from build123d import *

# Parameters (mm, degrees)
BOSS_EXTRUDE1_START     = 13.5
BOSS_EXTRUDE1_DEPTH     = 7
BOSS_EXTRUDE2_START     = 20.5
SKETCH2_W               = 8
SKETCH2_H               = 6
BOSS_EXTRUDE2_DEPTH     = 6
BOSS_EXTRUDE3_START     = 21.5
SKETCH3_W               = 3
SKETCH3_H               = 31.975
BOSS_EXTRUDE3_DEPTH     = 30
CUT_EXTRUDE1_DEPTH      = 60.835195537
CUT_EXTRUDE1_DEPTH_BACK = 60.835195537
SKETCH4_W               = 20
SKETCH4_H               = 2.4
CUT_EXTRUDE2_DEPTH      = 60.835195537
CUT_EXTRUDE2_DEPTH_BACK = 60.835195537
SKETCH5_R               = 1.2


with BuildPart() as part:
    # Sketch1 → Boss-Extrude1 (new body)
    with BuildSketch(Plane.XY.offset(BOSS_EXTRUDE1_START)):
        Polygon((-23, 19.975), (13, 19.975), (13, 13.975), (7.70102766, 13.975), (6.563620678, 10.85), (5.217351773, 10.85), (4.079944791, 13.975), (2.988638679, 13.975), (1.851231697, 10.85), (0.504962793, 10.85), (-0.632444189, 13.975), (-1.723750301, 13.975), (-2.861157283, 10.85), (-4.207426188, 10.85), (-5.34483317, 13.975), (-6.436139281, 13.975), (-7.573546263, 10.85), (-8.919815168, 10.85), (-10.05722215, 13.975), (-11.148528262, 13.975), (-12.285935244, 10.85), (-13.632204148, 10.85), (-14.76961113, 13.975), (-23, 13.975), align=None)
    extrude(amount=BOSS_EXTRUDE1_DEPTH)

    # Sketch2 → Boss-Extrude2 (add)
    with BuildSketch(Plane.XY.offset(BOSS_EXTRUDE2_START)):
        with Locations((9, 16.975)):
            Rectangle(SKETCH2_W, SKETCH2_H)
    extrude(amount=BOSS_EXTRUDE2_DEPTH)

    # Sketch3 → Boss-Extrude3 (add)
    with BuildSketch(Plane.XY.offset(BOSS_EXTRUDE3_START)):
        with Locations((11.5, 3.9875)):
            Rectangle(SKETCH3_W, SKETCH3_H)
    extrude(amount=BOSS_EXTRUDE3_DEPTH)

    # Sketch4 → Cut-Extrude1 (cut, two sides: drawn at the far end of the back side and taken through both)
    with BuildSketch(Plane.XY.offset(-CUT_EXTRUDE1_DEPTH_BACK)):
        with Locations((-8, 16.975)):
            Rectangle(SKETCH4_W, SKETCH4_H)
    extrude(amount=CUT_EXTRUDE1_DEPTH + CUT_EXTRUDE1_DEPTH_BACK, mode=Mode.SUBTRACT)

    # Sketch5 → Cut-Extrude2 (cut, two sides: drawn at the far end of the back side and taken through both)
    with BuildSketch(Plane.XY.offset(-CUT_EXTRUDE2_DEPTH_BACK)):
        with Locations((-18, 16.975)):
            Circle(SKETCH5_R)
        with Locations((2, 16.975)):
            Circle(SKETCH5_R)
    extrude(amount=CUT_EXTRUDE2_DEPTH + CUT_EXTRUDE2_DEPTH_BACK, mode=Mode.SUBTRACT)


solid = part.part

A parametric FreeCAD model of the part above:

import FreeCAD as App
import Part
import Sketcher
from FreeCAD import Vector
Q = App.Units.Quantity


def add_polygon(sketch, points):
    """Adds a closed chain of lines whose ends are joined by coincident constraints."""
    first, n = sketch.GeometryCount, len(points)
    for a, b in zip(points, points[1:] + points[:1]):
        sketch.addGeometry(Part.LineSegment(App.Vector(*a, 0), App.Vector(*b, 0)), False)
    for i in range(n):
        sketch.addConstraint(Sketcher.Constraint("Coincident", first + i, 2, first + (i + 1) % n, 1))

doc = App.newDocument("Part")
body = doc.addObject("PartDesign::Body", "Body")

# Sketch on XY plane
sketch1 = body.newObject("Sketcher::SketchObject", "Sketch")
sketch1.AttachmentSupport = (doc.getObject("XY_Plane"), [""])
sketch1.MapMode = "FlatFace"
sketch1.AttachmentOffset = App.Placement(Vector(0, 0, 13.5), App.Rotation())
add_polygon(sketch1, [(13, 19.975), (-23, 19.975), (-23, 13.975), (-14.769611, 13.975), (-13.632204, 10.85), (-12.285935, 10.85), (-11.148528, 13.975), (-10.057222, 13.975), (-8.919815, 10.85), (-7.573546, 10.85), (-6.436139, 13.975), (-5.344833, 13.975), (-4.207426, 10.85), (-2.861157, 10.85), (-1.72375, 13.975), (-0.632444, 13.975), (0.504963, 10.85), (1.851232, 10.85), (2.988639, 13.975), (4.079945, 13.975), (5.217352, 10.85), (6.563621, 10.85), (7.701028, 13.975), (13, 13.975)])  # lines 0-23
sketch1.addConstraint([
    Sketcher.Constraint("Horizontal", 0),
    Sketcher.Constraint("Vertical", 1),
    Sketcher.Constraint("Horizontal", 2),
    Sketcher.Constraint("Horizontal", 4),
    Sketcher.Constraint("Horizontal", 6),
    Sketcher.Constraint("Horizontal", 8),
    Sketcher.Constraint("Horizontal", 10),
    Sketcher.Constraint("Horizontal", 12),
    Sketcher.Constraint("Horizontal", 14),
    Sketcher.Constraint("Horizontal", 16),
    Sketcher.Constraint("Horizontal", 18),
    Sketcher.Constraint("Horizontal", 20),
    Sketcher.Constraint("Horizontal", 22),
    Sketcher.Constraint("Vertical", 23),
    Sketcher.Constraint("Parallel", 3, 7),
    Sketcher.Constraint("Parallel", 5, 9),
    Sketcher.Constraint("Parallel", 7, 11),
    Sketcher.Constraint("Parallel", 9, 13),
    Sketcher.Constraint("Parallel", 11, 15),
    Sketcher.Constraint("Parallel", 13, 17),
    Sketcher.Constraint("Parallel", 15, 19),
    Sketcher.Constraint("Parallel", 17, 21),
    Sketcher.Constraint("Horizontal", 2, 2, 5, 2),
    Sketcher.Constraint("Horizontal", 4, 2, 7, 2),
    Sketcher.Constraint("Horizontal", 6, 2, 9, 2),
    Sketcher.Constraint("Horizontal", 8, 2, 11, 2),
    Sketcher.Constraint("Horizontal", 10, 2, 13, 2),
    Sketcher.Constraint("Horizontal", 12, 2, 15, 2),
    Sketcher.Constraint("Horizontal", 14, 2, 17, 2),
    Sketcher.Constraint("Horizontal", 16, 2, 19, 2),
    Sketcher.Constraint("Horizontal", 18, 2, 21, 2),
    Sketcher.Constraint("Equal", 4, 8),
    Sketcher.Constraint("Equal", 6, 10),
    Sketcher.Constraint("Equal", 8, 12),
    Sketcher.Constraint("Equal", 10, 14),
    Sketcher.Constraint("Equal", 12, 16),
    Sketcher.Constraint("Equal", 14, 18),
    Sketcher.Constraint("Equal", 16, 20),
    Sketcher.Constraint("Equal", 3, 5),
    Sketcher.Constraint("DistanceX", 0, 2, 0, 1, Q("36 mm")),
    Sketcher.Constraint("DistanceY", 1, 2, 1, 1, Q("6 mm")),
    Sketcher.Constraint("Angle", 3, Q("-70 deg")),
    Sketcher.Constraint("DistanceX", 0, 2, -1, 1, Q("23 mm")),
    Sketcher.Constraint("DistanceY", -1, 1, 3, 2, Q("10.85 mm")),
    Sketcher.Constraint("DistanceY", -1, 1, 0, 2, Q("19.975 mm")),
    Sketcher.Constraint("DistanceX", 2, 1, 2, 2, Q("8.230389 mm")),
    Sketcher.Constraint("DistanceX", 4, 1, 4, 2, Q("1.346269 mm")),
    Sketcher.Constraint("DistanceX", 6, 1, 6, 2, Q("1.091306 mm")),
])
pad1 = body.newObject("PartDesign::Pad", "Pad")
pad1.Profile = sketch1
pad1.Length = 7

# Sketch on XY plane
sketch2 = body.newObject("Sketcher::SketchObject", "Sketch001")
sketch2.AttachmentSupport = (doc.getObject("XY_Plane"), [""])
sketch2.MapMode = "FlatFace"
sketch2.AttachmentOffset = App.Placement(Vector(0, 0, 20.5), App.Rotation())
add_polygon(sketch2, [(5, 19.975), (5, 13.975), (13, 13.975), (13, 19.975)])  # lines 0-3
sketch2.addConstraint([
    Sketcher.Constraint("Vertical", 0),
    Sketcher.Constraint("Horizontal", 1),
    Sketcher.Constraint("Vertical", 2),
    Sketcher.Constraint("Horizontal", 3),
    Sketcher.Constraint("DistanceX", 1, 1, 1, 2, Q("8 mm")),
    Sketcher.Constraint("DistanceY", 0, 2, 0, 1, Q("6 mm")),
    Sketcher.Constraint("DistanceX", -1, 1, 0, 2, Q("5 mm")),
    Sketcher.Constraint("DistanceY", -1, 1, 0, 2, Q("13.975 mm")),
])
pad2 = body.newObject("PartDesign::Pad", "Pad001")
pad2.Profile = sketch2
pad2.Length = 6

# Sketch on XY plane
sketch3 = body.newObject("Sketcher::SketchObject", "Sketch002")
sketch3.AttachmentSupport = (doc.getObject("XY_Plane"), [""])
sketch3.MapMode = "FlatFace"
sketch3.AttachmentOffset = App.Placement(Vector(0, 0, 21.5), App.Rotation())
add_polygon(sketch3, [(10, 19.975), (10, -12), (13, -12), (13, 19.975)])  # lines 0-3
sketch3.addConstraint([
    Sketcher.Constraint("Vertical", 0),
    Sketcher.Constraint("Horizontal", 1),
    Sketcher.Constraint("Vertical", 2),
    Sketcher.Constraint("Horizontal", 3),
    Sketcher.Constraint("DistanceX", 1, 1, 1, 2, Q("3 mm")),
    Sketcher.Constraint("DistanceX", -1, 1, 0, 2, Q("10 mm")),
    Sketcher.Constraint("DistanceY", 0, 2, -1, 1, Q("12 mm")),
    Sketcher.Constraint("DistanceY", 0, 2, 0, 1, Q("31.975 mm")),
])
pad3 = body.newObject("PartDesign::Pad", "Pad002")
pad3.Profile = sketch3
pad3.Length = 30

# Sketch on XY plane
sketch4 = body.newObject("Sketcher::SketchObject", "Sketch003")
sketch4.AttachmentSupport = (doc.getObject("XY_Plane"), [""])
sketch4.MapMode = "FlatFace"
add_polygon(sketch4, [(-18, 18.175), (-18, 15.775), (2, 15.775), (2, 18.175)])  # lines 0-3
sketch4.addConstraint([
    Sketcher.Constraint("Vertical", 0),
    Sketcher.Constraint("Horizontal", 1),
    Sketcher.Constraint("Vertical", 2),
    Sketcher.Constraint("Horizontal", 3),
    Sketcher.Constraint("DistanceX", 1, 1, 1, 2, Q("20 mm")),
    Sketcher.Constraint("DistanceY", 0, 2, 0, 1, Q("2.4 mm")),
    Sketcher.Constraint("DistanceX", 0, 2, -1, 1, Q("18 mm")),
    Sketcher.Constraint("DistanceY", -1, 1, 0, 2, Q("15.775 mm")),
])
pocket1 = body.newObject("PartDesign::Pocket", "Pocket")
pocket1.Profile = sketch4
pocket1.Type = "ThroughAll"
pocket1.Midplane = True

# Sketch on XY plane
sketch5 = body.newObject("Sketcher::SketchObject", "Sketch004")
sketch5.AttachmentSupport = (doc.getObject("XY_Plane"), [""])
sketch5.MapMode = "FlatFace"
sketch5.addGeometry([
    Part.Circle(Vector(-18, 16.975, 0), Vector(0, 0, 1), 1.2),
    Part.Circle(Vector(2, 16.975, 0), Vector(0, 0, 1), 1.2),
], False)
sketch5.addConstraint([
    Sketcher.Constraint("Equal", 0, 1),
    Sketcher.Constraint("Horizontal", 0, 3, 1, 3),
    Sketcher.Constraint("Diameter", 0, Q("2.4 mm")),
    Sketcher.Constraint("DistanceX", 0, 3, -1, 1, Q("18 mm")),
    Sketcher.Constraint("DistanceX", -1, 1, 1, 3, Q("2 mm")),
    Sketcher.Constraint("DistanceY", -1, 1, 0, 3, Q("16.975 mm")),
])
pocket2 = body.newObject("PartDesign::Pocket", "Pocket001")
pocket2.Profile = sketch5
pocket2.Type = "ThroughAll"
pocket2.Midplane = True

doc.recompute()
